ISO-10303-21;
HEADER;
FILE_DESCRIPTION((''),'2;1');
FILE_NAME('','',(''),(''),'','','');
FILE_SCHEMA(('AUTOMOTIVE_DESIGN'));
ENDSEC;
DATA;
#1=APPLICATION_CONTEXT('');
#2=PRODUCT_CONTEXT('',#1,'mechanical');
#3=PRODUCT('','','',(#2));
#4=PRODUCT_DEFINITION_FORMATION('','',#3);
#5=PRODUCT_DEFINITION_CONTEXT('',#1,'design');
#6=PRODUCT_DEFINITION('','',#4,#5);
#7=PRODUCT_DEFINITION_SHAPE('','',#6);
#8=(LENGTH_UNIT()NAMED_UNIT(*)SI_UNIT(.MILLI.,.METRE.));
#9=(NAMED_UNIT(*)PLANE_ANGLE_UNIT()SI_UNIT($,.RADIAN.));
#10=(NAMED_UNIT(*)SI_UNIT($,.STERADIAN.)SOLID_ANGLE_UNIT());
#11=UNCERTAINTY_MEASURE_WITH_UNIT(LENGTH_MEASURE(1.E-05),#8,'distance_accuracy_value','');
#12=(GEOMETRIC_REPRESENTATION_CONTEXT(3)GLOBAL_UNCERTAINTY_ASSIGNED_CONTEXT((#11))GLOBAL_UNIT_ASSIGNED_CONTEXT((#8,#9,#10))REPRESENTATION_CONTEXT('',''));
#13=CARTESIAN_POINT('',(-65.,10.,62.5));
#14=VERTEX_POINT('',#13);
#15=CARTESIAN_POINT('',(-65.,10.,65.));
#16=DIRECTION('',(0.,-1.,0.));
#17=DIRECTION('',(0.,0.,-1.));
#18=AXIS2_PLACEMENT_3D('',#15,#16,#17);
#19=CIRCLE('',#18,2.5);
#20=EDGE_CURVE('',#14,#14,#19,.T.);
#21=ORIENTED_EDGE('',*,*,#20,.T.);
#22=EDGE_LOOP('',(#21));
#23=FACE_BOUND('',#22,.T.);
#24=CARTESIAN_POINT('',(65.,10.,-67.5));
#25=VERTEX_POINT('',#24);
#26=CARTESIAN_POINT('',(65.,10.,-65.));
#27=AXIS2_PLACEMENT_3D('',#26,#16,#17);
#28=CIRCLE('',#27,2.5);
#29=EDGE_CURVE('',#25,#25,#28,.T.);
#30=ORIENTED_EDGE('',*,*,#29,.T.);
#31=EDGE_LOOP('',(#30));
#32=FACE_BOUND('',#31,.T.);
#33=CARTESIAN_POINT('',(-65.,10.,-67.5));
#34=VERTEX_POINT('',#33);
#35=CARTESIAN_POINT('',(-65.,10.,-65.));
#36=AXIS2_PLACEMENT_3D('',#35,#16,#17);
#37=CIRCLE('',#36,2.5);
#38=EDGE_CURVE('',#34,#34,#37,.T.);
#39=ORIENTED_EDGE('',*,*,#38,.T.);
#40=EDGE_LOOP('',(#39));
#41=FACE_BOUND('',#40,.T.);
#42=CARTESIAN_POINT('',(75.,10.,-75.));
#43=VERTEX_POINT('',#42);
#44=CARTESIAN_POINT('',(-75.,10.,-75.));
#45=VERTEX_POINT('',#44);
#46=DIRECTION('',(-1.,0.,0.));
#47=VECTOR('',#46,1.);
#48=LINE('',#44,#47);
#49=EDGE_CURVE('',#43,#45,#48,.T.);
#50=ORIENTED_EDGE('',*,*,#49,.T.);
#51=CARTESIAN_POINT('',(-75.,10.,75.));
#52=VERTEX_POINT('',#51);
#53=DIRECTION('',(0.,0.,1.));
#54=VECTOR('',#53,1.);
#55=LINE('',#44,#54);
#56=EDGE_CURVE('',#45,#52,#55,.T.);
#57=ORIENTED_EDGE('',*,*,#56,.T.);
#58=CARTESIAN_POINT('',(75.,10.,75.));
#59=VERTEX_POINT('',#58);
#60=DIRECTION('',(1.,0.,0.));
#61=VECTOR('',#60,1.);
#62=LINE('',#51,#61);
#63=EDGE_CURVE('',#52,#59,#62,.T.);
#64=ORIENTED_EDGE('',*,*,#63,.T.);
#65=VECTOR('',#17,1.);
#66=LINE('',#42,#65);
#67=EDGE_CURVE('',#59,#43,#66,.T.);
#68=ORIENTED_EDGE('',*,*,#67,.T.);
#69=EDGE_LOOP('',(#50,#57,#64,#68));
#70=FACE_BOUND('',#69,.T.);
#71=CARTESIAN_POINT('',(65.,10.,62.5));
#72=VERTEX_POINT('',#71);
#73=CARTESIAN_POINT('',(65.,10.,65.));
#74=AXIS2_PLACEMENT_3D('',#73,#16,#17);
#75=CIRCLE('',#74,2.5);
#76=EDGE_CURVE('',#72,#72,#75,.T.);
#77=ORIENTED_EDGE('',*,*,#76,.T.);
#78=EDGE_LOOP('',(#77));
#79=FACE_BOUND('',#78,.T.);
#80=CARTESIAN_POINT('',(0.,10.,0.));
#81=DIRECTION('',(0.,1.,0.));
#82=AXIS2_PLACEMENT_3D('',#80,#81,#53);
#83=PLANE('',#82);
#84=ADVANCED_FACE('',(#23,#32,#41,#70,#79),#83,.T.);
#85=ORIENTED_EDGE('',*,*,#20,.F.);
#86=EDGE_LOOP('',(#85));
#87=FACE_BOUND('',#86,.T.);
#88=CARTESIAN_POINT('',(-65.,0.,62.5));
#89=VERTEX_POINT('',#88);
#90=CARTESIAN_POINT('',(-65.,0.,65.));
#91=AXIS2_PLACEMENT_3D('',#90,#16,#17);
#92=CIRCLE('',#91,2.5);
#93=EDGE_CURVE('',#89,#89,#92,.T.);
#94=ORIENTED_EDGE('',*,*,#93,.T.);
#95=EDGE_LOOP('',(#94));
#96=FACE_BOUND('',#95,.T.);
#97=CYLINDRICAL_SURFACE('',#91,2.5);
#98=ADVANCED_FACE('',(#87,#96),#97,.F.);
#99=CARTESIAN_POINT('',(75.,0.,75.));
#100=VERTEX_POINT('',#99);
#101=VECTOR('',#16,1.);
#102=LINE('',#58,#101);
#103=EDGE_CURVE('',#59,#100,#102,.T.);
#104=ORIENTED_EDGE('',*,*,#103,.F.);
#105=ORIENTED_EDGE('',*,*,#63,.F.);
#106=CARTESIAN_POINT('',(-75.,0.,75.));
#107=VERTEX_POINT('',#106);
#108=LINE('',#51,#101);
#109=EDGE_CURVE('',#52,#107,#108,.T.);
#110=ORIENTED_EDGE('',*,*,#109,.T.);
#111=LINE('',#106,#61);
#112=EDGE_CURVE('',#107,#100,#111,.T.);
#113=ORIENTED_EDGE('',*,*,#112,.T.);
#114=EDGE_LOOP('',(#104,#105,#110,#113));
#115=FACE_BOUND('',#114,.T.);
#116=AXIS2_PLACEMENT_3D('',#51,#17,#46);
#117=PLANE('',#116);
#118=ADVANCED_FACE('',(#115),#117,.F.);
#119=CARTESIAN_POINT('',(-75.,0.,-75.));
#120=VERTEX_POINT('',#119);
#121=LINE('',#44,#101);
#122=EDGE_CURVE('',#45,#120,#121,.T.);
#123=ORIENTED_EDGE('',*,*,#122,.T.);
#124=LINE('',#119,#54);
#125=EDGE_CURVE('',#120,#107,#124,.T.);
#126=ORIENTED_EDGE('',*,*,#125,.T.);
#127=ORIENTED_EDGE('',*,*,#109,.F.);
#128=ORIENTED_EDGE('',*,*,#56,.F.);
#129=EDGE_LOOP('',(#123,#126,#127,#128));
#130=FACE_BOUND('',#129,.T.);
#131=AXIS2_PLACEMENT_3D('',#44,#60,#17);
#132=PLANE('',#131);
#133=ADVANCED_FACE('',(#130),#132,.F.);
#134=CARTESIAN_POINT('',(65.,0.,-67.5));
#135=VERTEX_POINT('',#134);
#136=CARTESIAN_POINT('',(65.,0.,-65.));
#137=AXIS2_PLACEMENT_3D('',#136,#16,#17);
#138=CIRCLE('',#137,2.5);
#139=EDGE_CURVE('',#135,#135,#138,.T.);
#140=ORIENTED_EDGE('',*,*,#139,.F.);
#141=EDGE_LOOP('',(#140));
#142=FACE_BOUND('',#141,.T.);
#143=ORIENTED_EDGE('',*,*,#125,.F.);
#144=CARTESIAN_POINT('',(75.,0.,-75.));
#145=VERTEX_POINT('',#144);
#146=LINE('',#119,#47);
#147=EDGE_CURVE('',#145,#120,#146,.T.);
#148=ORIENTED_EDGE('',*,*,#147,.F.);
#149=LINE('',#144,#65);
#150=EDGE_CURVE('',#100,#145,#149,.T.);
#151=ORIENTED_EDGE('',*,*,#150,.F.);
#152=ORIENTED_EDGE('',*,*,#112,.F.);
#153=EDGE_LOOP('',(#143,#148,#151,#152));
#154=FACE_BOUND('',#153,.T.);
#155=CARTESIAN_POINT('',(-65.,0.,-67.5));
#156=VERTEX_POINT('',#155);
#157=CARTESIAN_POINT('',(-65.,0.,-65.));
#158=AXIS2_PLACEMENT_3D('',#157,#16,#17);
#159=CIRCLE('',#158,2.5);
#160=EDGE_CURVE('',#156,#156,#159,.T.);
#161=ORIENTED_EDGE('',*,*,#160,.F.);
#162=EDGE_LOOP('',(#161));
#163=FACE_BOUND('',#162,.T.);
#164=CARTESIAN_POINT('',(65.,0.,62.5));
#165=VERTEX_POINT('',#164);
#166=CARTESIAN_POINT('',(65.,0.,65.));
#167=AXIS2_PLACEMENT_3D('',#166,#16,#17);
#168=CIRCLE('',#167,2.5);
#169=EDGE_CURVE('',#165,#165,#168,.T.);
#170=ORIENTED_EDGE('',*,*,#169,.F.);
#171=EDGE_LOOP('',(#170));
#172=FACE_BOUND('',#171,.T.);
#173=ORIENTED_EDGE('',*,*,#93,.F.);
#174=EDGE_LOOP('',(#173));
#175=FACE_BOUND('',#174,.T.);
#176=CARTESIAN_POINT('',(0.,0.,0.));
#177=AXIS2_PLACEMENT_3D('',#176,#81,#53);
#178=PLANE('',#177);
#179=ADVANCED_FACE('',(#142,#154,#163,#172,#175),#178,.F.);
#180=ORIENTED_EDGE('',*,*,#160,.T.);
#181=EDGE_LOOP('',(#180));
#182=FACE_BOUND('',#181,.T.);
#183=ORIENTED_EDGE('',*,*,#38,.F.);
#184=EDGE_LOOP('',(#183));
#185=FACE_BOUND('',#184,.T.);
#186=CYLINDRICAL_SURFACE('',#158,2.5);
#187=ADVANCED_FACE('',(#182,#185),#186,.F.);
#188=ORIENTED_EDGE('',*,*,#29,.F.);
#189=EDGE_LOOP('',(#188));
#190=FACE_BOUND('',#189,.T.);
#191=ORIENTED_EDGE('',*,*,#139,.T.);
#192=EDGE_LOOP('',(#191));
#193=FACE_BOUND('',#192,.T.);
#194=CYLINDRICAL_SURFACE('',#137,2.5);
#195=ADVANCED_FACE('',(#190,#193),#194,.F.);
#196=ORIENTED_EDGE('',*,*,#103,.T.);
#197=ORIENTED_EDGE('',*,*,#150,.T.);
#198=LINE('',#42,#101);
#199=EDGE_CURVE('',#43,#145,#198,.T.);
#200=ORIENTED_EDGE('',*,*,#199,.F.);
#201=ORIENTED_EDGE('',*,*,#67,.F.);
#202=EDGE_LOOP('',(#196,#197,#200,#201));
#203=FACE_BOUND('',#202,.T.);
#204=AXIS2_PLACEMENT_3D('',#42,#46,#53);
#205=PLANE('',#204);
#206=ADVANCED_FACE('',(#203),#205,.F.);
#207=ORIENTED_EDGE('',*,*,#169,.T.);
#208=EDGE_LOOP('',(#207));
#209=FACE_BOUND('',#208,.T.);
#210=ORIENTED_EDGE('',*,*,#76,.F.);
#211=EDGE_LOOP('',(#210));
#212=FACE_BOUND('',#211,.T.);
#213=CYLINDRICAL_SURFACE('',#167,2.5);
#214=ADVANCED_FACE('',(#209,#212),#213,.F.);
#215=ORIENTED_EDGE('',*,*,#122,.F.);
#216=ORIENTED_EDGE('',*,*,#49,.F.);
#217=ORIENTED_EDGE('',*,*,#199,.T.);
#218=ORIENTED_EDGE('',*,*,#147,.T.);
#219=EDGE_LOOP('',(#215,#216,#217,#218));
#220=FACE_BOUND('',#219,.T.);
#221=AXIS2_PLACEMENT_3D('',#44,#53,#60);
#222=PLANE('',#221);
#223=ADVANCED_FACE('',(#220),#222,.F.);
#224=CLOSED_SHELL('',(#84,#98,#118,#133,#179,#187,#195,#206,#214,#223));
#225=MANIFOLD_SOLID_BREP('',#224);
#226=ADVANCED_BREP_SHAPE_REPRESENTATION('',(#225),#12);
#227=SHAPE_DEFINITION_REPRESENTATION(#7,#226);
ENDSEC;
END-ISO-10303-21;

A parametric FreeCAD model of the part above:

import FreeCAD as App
import Part
import Sketcher
Q = App.Units.Quantity

doc = App.newDocument("Part")
body = doc.addObject("PartDesign::Body", "Body")

# Sketch on XZ plane
sketch1 = body.newObject("Sketcher::SketchObject", "Sketch")
sketch1.AttachmentSupport = (doc.getObject("XZ_Plane"), [""])
sketch1.MapMode = "FlatFace"
sketch1.addGeometry([
    Part.LineSegment(App.Vector(-75, -75, 0), App.Vector(-75, 75, 0)),
    Part.LineSegment(App.Vector(-75, 75, 0), App.Vector(75, 75, 0)),
    Part.LineSegment(App.Vector(75, 75, 0), App.Vector(75, -75, 0)),
    Part.LineSegment(App.Vector(75, -75, 0), App.Vector(-75, -75, 0)),
], False)
sketch1.addConstraint([
    Sketcher.Constraint("Coincident", 0, 2, 1, 1),
    Sketcher.Constraint("Coincident", 1, 2, 2, 1),
    Sketcher.Constraint("Coincident", 2, 2, 3, 1),
    Sketcher.Constraint("Coincident", 3, 2, 0, 1),
    Sketcher.Constraint("Vertical", 0),
    Sketcher.Constraint("Horizontal", 1),
    Sketcher.Constraint("Vertical", 2),
    Sketcher.Constraint("Horizontal", 3),
    Sketcher.Constraint("Symmetric", 0, 2, 2, 2, -1, 1),
    Sketcher.Constraint("Equal", 3, 0),
    Sketcher.Constraint("DistanceX", 1, 1, 1, 2, Q("150 mm")),
])
pad1 = body.newObject("PartDesign::Pad", "Pad")
pad1.Profile = sketch1
pad1.Length = 10
pad1.Reversed = True

# Sketch on XZ plane
sketch2 = body.newObject("Sketcher::SketchObject", "Sketch001")
sketch2.AttachmentSupport = (doc.getObject("XZ_Plane"), [""])
sketch2.MapMode = "FlatFace"
sketch2.addGeometry([
    Part.Circle(App.Vector(65, 65, 0), App.Vector(0, 0, 1), 2.5),
    Part.Circle(App.Vector(65, -65, 0), App.Vector(0, 0, 1), 2.5),
    Part.Circle(App.Vector(-65, -65, 0), App.Vector(0, 0, 1), 2.5),
    Part.Circle(App.Vector(-65, 65, 0), App.Vector(0, 0, 1), 2.5),
], False)
sketch2.addConstraint([
    Sketcher.Constraint("Equal", 0, 1),
    Sketcher.Constraint("Equal", 1, 2),
    Sketcher.Constraint("Equal", 2, 3),
    Sketcher.Constraint("Symmetric", 0, 3, 2, 3, -1, 1),
    Sketcher.Constraint("Symmetric", 1, 3, 3, 3, -1, 1),
    Sketcher.Constraint("Symmetric", 1, 3, 2, 3, -2),
    Sketcher.Constraint("Diameter", 0, Q("5 mm")),
    Sketcher.Constraint("DistanceX", -1, 1, 0, 3, Q("65 mm")),
    Sketcher.Constraint("DistanceY", -1, 1, 0, 3, Q("65 mm")),
])
doc.recompute()
hole = body.newObject("PartDesign::Hole", "Hole")
hole.Profile = sketch2
hole.ThreadType = "None"
hole.Diameter = 5
hole.DepthType = "ThroughAll"

doc.recompute()
